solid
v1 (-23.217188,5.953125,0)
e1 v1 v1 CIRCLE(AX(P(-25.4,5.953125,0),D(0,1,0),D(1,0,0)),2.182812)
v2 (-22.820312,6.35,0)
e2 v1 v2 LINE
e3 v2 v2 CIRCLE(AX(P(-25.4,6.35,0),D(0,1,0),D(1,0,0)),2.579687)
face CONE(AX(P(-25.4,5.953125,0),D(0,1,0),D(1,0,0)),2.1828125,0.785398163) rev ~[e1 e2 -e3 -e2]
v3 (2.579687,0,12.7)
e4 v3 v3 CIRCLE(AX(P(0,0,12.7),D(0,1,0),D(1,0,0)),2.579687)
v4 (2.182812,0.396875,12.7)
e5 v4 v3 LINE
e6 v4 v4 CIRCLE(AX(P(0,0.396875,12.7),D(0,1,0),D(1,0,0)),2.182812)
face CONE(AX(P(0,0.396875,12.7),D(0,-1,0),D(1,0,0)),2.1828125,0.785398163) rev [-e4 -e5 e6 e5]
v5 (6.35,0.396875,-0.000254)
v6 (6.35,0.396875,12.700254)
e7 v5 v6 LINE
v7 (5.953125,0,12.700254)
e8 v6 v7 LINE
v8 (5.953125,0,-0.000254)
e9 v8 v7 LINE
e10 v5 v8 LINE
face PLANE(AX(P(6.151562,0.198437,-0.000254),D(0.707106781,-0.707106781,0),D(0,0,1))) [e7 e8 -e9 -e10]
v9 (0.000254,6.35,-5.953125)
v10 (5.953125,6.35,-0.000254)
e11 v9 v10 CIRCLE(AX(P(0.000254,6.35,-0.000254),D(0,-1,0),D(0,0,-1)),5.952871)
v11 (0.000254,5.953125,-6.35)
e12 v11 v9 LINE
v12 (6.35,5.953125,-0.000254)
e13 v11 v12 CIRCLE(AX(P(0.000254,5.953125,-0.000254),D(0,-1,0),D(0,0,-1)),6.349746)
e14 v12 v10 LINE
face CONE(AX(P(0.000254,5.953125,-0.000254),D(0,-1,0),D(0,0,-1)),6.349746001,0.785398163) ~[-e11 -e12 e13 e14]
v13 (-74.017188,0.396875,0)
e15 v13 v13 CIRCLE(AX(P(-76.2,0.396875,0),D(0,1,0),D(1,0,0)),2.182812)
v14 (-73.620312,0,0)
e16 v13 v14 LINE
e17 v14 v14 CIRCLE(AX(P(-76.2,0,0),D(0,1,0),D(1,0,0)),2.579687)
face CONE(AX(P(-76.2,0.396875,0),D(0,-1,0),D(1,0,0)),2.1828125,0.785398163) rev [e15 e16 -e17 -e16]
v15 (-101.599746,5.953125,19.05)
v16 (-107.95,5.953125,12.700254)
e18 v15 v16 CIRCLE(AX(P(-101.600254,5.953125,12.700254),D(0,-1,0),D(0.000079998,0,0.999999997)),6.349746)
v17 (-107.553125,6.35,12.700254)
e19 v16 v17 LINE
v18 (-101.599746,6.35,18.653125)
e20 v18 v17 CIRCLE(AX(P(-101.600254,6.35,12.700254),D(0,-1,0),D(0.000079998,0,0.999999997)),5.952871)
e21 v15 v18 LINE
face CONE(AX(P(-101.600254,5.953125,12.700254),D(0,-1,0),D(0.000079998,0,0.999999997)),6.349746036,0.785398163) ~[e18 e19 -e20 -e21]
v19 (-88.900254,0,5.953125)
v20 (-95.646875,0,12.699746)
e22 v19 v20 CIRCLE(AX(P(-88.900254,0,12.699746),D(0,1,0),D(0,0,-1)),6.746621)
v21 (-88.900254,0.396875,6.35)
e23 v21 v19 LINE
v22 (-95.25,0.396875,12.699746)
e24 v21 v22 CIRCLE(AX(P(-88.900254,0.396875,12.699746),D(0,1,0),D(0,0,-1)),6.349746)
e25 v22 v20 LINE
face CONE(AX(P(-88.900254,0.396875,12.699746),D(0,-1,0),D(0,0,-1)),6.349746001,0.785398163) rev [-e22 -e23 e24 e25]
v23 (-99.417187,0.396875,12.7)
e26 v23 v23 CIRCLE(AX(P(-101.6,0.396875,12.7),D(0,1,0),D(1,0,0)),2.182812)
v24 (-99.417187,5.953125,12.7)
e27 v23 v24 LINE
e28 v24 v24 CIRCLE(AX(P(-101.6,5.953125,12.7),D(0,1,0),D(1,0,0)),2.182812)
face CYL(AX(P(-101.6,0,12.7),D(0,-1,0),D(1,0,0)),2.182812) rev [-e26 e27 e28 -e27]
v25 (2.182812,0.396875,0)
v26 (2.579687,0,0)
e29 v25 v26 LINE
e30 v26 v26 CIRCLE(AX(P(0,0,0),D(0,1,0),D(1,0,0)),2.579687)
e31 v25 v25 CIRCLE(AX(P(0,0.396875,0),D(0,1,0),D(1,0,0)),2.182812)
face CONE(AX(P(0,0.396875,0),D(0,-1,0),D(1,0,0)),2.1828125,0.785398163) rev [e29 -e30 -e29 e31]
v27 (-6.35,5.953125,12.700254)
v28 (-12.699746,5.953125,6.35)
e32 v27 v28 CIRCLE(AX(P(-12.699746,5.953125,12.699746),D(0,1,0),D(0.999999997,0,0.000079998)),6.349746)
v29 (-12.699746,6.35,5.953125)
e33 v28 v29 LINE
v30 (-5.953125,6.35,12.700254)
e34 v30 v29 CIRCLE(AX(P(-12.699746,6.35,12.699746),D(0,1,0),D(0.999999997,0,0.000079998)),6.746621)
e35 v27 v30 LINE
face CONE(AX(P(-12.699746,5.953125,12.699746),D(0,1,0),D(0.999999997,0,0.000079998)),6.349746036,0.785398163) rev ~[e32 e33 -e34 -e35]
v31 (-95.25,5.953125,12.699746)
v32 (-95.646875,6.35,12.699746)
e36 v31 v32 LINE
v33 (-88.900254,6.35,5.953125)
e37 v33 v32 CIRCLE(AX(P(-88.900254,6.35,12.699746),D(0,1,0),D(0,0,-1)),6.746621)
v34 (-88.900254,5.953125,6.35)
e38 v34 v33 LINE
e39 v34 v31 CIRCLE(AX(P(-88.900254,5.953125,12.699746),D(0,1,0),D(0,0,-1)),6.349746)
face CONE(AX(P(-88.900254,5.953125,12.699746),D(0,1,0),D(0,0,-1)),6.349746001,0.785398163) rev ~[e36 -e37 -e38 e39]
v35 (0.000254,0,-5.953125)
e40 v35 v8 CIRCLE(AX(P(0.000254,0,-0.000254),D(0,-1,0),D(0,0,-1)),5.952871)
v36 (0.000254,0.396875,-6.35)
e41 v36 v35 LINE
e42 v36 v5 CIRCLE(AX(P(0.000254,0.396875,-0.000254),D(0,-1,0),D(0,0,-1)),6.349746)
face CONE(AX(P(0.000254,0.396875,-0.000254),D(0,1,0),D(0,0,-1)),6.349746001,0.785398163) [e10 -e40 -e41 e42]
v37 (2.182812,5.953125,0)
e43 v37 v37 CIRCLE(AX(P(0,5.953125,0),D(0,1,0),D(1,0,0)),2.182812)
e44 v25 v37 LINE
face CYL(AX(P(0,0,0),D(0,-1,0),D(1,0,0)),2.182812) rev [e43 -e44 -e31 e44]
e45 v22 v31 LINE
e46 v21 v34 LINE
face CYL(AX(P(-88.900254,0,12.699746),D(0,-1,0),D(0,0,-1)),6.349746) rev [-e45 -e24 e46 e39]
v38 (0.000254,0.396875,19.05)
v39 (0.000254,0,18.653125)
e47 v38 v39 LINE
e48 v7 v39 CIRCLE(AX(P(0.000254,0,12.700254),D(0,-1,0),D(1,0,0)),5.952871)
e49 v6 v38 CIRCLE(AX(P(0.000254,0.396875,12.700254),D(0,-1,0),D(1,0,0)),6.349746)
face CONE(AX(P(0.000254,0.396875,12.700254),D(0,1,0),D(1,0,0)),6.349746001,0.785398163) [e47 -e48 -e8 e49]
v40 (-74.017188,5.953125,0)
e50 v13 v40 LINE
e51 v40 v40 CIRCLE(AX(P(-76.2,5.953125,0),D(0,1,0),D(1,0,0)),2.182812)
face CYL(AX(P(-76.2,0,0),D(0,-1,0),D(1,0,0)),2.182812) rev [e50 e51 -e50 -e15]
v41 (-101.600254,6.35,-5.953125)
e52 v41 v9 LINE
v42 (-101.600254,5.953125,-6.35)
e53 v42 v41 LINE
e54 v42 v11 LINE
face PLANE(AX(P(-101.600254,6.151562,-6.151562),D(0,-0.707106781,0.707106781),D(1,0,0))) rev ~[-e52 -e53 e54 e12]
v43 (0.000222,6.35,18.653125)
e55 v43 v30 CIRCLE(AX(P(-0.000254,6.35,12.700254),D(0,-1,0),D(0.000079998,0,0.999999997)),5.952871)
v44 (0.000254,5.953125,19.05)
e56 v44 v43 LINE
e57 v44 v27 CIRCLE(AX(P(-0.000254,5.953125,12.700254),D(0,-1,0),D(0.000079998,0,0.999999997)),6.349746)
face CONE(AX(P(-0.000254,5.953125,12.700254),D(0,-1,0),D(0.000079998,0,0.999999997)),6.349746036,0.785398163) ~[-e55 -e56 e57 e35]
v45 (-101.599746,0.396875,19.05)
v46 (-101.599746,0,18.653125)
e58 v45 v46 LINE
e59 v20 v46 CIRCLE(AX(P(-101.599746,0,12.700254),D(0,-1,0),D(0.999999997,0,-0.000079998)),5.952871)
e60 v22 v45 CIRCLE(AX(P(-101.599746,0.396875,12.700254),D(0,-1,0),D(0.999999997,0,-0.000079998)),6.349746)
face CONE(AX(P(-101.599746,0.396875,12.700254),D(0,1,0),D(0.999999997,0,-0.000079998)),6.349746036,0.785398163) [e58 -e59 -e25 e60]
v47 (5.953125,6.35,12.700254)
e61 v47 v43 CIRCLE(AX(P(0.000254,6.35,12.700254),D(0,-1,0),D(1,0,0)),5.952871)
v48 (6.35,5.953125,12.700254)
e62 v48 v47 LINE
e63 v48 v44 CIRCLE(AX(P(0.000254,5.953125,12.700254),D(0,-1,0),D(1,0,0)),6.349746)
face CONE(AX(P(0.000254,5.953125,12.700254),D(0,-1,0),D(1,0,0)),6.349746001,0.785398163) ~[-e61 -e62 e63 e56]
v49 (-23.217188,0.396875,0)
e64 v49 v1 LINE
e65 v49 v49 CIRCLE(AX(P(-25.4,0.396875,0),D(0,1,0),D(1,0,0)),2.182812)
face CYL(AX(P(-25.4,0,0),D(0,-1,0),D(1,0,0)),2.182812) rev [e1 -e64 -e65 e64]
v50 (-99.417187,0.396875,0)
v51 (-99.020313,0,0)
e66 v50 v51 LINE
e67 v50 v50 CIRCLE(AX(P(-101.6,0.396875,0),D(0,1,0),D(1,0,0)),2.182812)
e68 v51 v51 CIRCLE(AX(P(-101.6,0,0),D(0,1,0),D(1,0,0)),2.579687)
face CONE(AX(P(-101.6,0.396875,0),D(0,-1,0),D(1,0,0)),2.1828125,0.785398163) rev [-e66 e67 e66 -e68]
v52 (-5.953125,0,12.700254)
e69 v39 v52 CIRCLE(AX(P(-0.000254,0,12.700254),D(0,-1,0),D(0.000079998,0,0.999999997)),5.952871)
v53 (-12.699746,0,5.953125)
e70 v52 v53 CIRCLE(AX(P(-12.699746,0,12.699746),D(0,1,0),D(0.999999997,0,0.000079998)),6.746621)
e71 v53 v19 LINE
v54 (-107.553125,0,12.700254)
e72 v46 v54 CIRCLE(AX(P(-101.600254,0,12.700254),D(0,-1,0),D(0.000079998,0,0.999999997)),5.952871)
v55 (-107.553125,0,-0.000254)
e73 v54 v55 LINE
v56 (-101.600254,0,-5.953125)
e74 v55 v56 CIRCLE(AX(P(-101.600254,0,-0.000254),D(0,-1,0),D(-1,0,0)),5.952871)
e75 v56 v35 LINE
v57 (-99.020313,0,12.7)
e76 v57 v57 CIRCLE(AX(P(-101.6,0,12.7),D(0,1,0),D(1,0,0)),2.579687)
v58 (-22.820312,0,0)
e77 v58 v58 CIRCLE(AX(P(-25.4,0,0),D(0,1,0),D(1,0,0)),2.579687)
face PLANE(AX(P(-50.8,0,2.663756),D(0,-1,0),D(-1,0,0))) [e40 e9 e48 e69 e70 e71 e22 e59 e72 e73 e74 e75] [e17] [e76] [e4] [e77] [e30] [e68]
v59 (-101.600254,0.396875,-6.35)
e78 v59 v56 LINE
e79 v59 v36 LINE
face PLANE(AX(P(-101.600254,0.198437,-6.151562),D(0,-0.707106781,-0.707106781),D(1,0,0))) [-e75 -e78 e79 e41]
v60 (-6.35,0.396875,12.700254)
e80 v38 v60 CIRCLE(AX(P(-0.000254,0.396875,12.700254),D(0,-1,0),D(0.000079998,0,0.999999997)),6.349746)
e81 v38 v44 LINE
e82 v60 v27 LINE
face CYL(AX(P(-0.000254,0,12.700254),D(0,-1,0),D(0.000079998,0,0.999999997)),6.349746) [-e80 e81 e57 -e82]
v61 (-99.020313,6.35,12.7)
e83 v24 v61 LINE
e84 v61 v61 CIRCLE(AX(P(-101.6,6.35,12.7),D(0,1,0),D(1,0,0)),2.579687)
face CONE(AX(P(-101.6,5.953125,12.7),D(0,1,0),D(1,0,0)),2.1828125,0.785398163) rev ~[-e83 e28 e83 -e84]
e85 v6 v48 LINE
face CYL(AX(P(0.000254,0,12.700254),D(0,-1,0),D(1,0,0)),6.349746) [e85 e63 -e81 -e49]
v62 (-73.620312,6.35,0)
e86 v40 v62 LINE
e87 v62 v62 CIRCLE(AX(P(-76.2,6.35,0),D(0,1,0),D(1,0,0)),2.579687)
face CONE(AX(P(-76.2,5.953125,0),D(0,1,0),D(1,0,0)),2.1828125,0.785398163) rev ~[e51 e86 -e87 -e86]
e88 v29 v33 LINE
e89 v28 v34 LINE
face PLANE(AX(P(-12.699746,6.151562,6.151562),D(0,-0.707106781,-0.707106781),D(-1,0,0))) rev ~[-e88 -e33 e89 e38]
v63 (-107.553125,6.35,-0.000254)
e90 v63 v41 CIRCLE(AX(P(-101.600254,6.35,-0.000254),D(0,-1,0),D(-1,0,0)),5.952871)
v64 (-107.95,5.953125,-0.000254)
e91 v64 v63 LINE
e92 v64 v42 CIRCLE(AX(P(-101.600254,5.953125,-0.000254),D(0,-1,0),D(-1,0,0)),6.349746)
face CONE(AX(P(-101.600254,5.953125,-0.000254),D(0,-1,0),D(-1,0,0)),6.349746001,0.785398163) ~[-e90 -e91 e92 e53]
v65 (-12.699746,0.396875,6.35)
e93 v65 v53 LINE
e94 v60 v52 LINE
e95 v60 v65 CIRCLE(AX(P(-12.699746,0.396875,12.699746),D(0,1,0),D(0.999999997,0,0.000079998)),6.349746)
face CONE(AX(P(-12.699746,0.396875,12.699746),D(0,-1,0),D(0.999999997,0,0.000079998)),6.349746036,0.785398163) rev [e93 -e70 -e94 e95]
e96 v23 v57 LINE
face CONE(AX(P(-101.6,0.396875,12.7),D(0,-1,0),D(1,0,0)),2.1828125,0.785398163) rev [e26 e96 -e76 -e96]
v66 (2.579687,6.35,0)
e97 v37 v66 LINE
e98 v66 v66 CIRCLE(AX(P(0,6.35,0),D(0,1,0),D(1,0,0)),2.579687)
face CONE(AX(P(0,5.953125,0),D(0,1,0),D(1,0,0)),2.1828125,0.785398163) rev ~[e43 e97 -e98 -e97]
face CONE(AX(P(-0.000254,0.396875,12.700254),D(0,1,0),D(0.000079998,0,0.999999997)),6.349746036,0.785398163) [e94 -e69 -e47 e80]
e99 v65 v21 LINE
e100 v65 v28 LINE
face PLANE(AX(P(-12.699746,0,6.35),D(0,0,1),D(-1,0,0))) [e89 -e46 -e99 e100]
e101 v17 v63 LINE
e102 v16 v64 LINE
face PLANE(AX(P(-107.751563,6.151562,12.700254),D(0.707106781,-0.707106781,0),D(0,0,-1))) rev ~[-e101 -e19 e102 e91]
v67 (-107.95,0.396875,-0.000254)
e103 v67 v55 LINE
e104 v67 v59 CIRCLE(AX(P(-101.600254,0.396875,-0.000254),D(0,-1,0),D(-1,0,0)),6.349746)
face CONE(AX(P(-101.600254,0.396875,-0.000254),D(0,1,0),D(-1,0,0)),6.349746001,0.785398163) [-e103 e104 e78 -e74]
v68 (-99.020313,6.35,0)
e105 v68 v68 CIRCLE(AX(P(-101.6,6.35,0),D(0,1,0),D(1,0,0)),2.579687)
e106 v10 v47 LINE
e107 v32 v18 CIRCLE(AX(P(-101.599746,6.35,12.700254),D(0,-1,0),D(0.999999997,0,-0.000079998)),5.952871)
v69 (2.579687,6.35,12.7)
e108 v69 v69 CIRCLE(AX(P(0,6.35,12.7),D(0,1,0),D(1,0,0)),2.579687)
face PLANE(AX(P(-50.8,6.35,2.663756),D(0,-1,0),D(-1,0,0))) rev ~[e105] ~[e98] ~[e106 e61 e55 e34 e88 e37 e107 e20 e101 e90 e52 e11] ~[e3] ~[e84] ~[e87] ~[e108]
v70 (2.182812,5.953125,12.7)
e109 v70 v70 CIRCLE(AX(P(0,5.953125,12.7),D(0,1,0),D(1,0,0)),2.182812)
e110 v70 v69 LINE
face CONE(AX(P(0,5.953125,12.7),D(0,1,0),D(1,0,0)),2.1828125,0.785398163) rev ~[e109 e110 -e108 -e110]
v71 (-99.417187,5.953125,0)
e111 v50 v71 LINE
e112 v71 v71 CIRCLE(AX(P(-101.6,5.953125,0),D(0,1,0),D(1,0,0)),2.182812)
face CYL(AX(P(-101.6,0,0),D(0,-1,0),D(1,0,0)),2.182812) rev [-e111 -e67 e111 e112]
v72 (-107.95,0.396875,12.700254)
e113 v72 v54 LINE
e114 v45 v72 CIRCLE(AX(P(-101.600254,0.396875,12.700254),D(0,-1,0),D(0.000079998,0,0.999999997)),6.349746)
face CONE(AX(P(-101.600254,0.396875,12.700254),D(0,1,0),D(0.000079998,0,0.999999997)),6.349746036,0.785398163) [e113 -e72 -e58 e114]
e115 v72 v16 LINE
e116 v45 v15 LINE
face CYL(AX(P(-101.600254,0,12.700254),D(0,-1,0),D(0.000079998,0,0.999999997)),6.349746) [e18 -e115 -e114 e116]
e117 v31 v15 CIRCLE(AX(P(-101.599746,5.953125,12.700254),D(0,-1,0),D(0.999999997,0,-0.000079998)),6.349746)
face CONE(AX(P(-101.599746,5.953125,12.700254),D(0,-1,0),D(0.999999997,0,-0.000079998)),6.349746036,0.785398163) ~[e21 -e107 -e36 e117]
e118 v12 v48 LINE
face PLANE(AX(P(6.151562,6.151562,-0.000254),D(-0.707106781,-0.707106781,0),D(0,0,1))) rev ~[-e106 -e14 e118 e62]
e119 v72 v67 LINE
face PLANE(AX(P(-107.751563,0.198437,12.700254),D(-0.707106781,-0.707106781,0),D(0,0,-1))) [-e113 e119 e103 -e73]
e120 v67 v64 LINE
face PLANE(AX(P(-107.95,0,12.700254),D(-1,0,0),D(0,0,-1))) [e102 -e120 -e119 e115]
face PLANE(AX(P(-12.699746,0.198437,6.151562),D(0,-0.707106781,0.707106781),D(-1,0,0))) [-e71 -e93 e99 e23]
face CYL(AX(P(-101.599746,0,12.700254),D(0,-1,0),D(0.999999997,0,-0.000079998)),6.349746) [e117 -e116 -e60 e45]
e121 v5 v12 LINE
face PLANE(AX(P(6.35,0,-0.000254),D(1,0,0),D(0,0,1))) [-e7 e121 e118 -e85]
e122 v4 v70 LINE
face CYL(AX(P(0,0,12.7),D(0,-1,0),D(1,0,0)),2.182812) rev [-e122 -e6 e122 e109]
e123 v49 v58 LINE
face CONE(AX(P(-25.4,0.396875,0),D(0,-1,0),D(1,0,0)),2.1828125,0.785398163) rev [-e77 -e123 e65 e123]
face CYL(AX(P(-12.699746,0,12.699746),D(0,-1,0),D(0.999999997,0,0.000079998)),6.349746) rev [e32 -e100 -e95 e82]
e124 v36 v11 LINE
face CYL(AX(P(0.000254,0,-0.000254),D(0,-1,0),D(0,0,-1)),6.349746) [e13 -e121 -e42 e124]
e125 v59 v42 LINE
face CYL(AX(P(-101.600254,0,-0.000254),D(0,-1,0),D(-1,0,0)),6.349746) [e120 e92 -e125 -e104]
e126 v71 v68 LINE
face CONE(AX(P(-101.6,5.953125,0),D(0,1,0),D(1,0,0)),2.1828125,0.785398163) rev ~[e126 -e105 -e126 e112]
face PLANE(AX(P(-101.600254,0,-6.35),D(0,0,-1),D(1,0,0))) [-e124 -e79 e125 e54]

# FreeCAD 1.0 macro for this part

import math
import FreeCAD as App
import Part
import Sketcher
Q = App.Units.Quantity

doc = App.newDocument("Part")
params = doc.addObject("Spreadsheet::Sheet", "Params")
for row, (alias, value) in enumerate([
    ("sketch1_diameter", "0.171875 in"),
    ("pad1_length", "0.25 in"),
    ("chamfer_size", "0.015625 in"),
], start=1):
    params.set(f"A{row}", alias)
    params.set(f"B{row}", "=" + value)
    params.setAlias(f"B{row}", alias)

body = doc.addObject("PartDesign::Body", "Body")

# Sketch on XZ plane
sketch1 = doc.addObject("Sketcher::SketchObject", "Sketch")
body.addObject(sketch1)
sketch1.AttachmentSupport = (doc.XZ_Plane, [""])
sketch1.MapMode = "FlatFace"
sketch1.addGeometry([
    Part.LineSegment(App.Vector(0, -6.3, 0), App.Vector(-101.6, -6.3, 0)),  # 0
    Part.ArcOfCircle(Part.Circle(App.Vector(-101.6, 0, 0), App.Vector(0, 0, 1), 6.3), math.radians(-180), math.radians(-90)),  # 1
    Part.LineSegment(App.Vector(-108, 0, 0), App.Vector(-108, 12.7, 0)),  # 2
    Part.ArcOfCircle(Part.Circle(App.Vector(-101.6, 12.7, 0), App.Vector(0, 0, 1), 6.3), math.radians(90), math.radians(180)),  # 3
    Part.ArcOfCircle(Part.Circle(App.Vector(-101.6, 12.7, 0), App.Vector(0, 0, 1), 6.3), math.radians(0), math.radians(90)),  # 4
    Part.ArcOfCircle(Part.Circle(App.Vector(-88.9, 12.7, 0), App.Vector(0, 0, 1), 6.3), math.radians(-180), math.radians(-90)),  # 5
    Part.LineSegment(App.Vector(-88.9, 6.3, 0), App.Vector(-12.7, 6.3, 0)),  # 6
    Part.ArcOfCircle(Part.Circle(App.Vector(-12.7, 12.7, 0), App.Vector(0, 0, 1), 6.3), math.radians(-90), math.radians(0)),  # 7
    Part.ArcOfCircle(Part.Circle(App.Vector(0, 12.7, 0), App.Vector(0, 0, 1), 6.3), math.radians(90), math.radians(180)),  # 8
    Part.ArcOfCircle(Part.Circle(App.Vector(0, 12.7, 0), App.Vector(0, 0, 1), 6.3), math.radians(0), math.radians(90)),  # 9
    Part.LineSegment(App.Vector(6.3, 12.7, 0), App.Vector(6.3, 0, 0)),  # 10
    Part.ArcOfCircle(Part.Circle(App.Vector(0, 0, 0), App.Vector(0, 0, 1), 6.3), math.radians(-90), math.radians(0)),  # 11
    Part.Circle(App.Vector(0, 12.7, 0), App.Vector(0, 0, 1), 2.2),  # 12
    Part.Circle(App.Vector(-101.6, 12.7, 0), App.Vector(0, 0, 1), 2.2),  # 13
    Part.Circle(App.Vector(0, 0, 0), App.Vector(0, 0, 1), 2.2),  # 14
    Part.Circle(App.Vector(-25.4, 0, 0), App.Vector(0, 0, 1), 2.2),  # 15
    Part.Circle(App.Vector(-76.2, 0, 0), App.Vector(0, 0, 1), 2.2),  # 16
    Part.Circle(App.Vector(-101.6, 0, 0), App.Vector(0, 0, 1), 2.2),  # 17
], False)
sketch1.addConstraint([
    Sketcher.Constraint("Tangent", 0, 2, 1, 2),
    Sketcher.Constraint("Tangent", 1, 1, 2, 1),
    Sketcher.Constraint("Tangent", 2, 2, 3, 2),
    Sketcher.Constraint("Coincident", 3, 1, 4, 2),
    Sketcher.Constraint("Coincident", 4, 1, 5, 1),
    Sketcher.Constraint("Tangent", 5, 2, 6, 1),
    Sketcher.Constraint("Tangent", 6, 2, 7, 1),
    Sketcher.Constraint("Coincident", 7, 2, 8, 2),
    Sketcher.Constraint("Coincident", 8, 1, 9, 2),
    Sketcher.Constraint("Tangent", 9, 1, 10, 1),
    Sketcher.Constraint("Tangent", 10, 2, 11, 2),
    Sketcher.Constraint("Tangent", 11, 1, 0, 1),
    Sketcher.Constraint("Horizontal", 0),
    Sketcher.Constraint("Vertical", 2),
    Sketcher.Constraint("Horizontal", 6),
    Sketcher.Constraint("Vertical", 10),
    Sketcher.Constraint("Coincident", 14, 3, -1, 1),
    Sketcher.Constraint("Equal", 1, 3),
    Sketcher.Constraint("Equal", 3, 4),
    Sketcher.Constraint("Equal", 4, 5),
    Sketcher.Constraint("Equal", 5, 7),
    Sketcher.Constraint("Equal", 7, 8),
    Sketcher.Constraint("Equal", 8, 9),
    Sketcher.Constraint("Equal", 9, 11),
    Sketcher.Constraint("Equal", 12, 13),
    Sketcher.Constraint("Equal", 13, 14),
    Sketcher.Constraint("Equal", 14, 15),
    Sketcher.Constraint("Equal", 15, 16),
    Sketcher.Constraint("Equal", 16, 17),
    Sketcher.Constraint("Symmetric", 7, 2, 9, 1, -2),
    Sketcher.Constraint("PointOnObject", 12, 3, -2),
    Sketcher.Constraint("PointOnObject", 15, 3, -1),
    Sketcher.Constraint("PointOnObject", 16, 3, -1),
    Sketcher.Constraint("PointOnObject", 17, 3, -1),
    Sketcher.Constraint("Horizontal", 4, 3, 8, 3),
    Sketcher.Constraint("Horizontal", 12, 3, 13, 3),
    Sketcher.Constraint("Horizontal", 7, 3, 4, 1),
    Sketcher.Constraint("Vertical", 13, 3, 17, 3),
    Sketcher.Constraint("Vertical", 4, 3, 3, 1),
    Sketcher.Constraint("Vertical", 11, 3, 8, 1),
    Sketcher.Constraint("Diameter", 12, Q("0.171875 in")),
    Sketcher.Constraint("DistanceX", 13, 3, -1, 1, Q("4 in")),
    Sketcher.Constraint("DistanceX", 15, 3, -1, 1, Q("1 in")),
    Sketcher.Constraint("DistanceX", 16, 3, -1, 1, Q("3 in")),
    Sketcher.Constraint("DistanceX", 3, 3, 8, 3, Q("4 in")),
    Sketcher.Constraint("DistanceX", 4, 3, 9, 3, Q("4 in")),
    Sketcher.Constraint("DistanceY", -1, 1, 12, 3, Q("0.5 in")),
    Sketcher.Constraint("DistanceX", 3, 3, 5, 3, Q("0.5 in")),
    Sketcher.Constraint("DistanceY", 1, 3, 5, 3, Q("0.5 in")),
    Sketcher.Constraint("DistanceY", 0, 2, -1, 1, Q("0.25 in")),
    Sketcher.Constraint("DistanceY", -1, 1, 3, 1, Q("0.75 in")),
    Sketcher.Constraint("Radius", 1, Q("6.349746 mm")),
])
sketch1.setExpression("Constraints[40]", "Params.sketch1_diameter")
pad1 = doc.addObject("PartDesign::Pad", "Pad")
body.addObject(pad1)
pad1.Profile = sketch1
pad1.setExpression("Length", "Params.pad1_length")
pad1.Reversed = True
doc.recompute()

chamfer = doc.addObject("PartDesign::Chamfer", "Chamfer")
body.addObject(chamfer)
chamfer.Base = (pad1, ["Edge1"])
chamfer.UseAllEdges = True
chamfer.setExpression("Size", "Params.chamfer_size")

doc.recompute()
